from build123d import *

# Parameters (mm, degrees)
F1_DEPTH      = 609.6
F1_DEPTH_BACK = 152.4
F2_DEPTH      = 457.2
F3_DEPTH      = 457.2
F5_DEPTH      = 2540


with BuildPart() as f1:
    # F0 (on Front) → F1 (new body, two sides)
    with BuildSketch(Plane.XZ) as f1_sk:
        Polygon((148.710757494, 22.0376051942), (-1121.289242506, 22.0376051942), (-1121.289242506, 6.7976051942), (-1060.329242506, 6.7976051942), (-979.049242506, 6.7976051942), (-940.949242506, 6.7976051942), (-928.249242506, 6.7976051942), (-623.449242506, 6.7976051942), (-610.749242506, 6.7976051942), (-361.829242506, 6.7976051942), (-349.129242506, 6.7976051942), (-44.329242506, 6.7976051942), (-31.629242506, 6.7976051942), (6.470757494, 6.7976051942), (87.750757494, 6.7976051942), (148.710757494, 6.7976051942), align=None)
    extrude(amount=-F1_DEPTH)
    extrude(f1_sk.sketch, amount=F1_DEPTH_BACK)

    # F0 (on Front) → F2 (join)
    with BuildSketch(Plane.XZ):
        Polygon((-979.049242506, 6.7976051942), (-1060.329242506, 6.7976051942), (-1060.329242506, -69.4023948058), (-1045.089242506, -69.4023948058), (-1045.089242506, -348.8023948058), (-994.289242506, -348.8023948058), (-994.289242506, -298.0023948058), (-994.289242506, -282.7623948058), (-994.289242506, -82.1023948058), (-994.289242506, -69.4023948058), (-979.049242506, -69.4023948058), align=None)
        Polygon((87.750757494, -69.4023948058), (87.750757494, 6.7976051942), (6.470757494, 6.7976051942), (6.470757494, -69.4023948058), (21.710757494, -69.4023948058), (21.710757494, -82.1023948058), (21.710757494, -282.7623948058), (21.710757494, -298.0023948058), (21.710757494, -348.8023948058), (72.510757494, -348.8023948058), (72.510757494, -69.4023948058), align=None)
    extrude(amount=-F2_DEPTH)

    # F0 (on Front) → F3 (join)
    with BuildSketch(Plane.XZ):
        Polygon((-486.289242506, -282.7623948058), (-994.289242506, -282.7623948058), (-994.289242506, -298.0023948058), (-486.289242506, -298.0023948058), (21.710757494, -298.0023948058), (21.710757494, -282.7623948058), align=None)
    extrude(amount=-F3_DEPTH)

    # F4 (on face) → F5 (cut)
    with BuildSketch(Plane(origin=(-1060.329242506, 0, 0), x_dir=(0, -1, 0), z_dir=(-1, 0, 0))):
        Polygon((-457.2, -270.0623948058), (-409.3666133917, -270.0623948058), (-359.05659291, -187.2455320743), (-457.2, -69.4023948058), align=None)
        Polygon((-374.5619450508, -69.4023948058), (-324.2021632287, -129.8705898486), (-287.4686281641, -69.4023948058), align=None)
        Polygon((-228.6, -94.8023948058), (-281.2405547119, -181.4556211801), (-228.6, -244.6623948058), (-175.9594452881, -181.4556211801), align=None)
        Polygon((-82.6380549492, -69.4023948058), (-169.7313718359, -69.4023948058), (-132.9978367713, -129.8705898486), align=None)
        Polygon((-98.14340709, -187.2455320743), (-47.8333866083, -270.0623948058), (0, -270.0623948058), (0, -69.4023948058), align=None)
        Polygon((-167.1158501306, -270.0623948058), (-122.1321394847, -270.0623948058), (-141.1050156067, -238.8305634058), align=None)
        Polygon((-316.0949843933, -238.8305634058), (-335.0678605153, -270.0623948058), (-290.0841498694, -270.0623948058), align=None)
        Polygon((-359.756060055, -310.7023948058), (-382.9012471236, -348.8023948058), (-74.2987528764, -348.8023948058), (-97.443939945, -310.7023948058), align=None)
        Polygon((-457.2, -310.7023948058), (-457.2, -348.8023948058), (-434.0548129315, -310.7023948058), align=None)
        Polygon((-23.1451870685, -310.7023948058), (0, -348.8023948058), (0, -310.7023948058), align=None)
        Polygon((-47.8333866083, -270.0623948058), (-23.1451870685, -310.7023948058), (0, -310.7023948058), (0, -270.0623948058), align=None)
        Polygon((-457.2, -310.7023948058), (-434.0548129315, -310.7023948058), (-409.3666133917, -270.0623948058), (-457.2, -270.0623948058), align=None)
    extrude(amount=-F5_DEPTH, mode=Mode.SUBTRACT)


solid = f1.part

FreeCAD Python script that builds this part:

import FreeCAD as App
import Part
import Sketcher

V = App.Vector
Q = App.Units.Quantity


def add_polygon(sketch, points):
    """Adds a closed chain of lines whose ends are joined by coincident constraints."""
    first, n = sketch.GeometryCount, len(points)
    for a, b in zip(points, points[1:] + points[:1]):
        sketch.addGeometry(Part.LineSegment(App.Vector(*a, 0), App.Vector(*b, 0)), False)
    for i in range(n):
        sketch.addConstraint(Sketcher.Constraint("Coincident", first + i, 2, first + (i + 1) % n, 1))

doc = App.newDocument("Part")
params = doc.addObject("Spreadsheet::Sheet", "Params")
for row, (alias, value) in enumerate([
    ("sketch1_width", "50 in"),
    ("sketch1_height", "0.6 in"),
    ("pad1_length", "24 in"),
    ("pad1_length2", "6 in"),
    ("sketch2_width", "2 in"),
    ("sketch2_height", "3 in"),
    ("sketch2_height2", "11 in"),
    ("sketch2_width2", "3.2 in"),
    ("pad2_length", "18 in"),
    ("sketch3_width", "40 in"),
    ("sketch3_height", "0.6 in"),
    ("pad3_length", "18 in"),
    ("sketch4_height", "11 in"),
    ("pocket1_length", "100 in"),
], start=1):
    params.set(f"A{row}", alias)
    params.set(f"B{row}", "=" + value)
    params.setAlias(f"B{row}", alias)

body = doc.addObject("PartDesign::Body", "Body")

# Sketch on XZ plane
sketch1 = body.newObject("Sketcher::SketchObject", "Sketch")
sketch1.AttachmentSupport = (doc.getObject("XZ_Plane"), [""])
sketch1.MapMode = "FlatFace"
add_polygon(sketch1, [(149, 22), (-1121, 22), (-1121, 7), (149, 7)])  # lines 0-3
sketch1.addConstraint([
    Sketcher.Constraint("Horizontal", 0),
    Sketcher.Constraint("Vertical", 1),
    Sketcher.Constraint("Horizontal", 2),
    Sketcher.Constraint("Vertical", 3),
    Sketcher.Constraint("DistanceX", 0, 2, 0, 1, Q("50 in")),
    Sketcher.Constraint("DistanceY", 1, 2, 1, 1, Q("0.6 in")),
    Sketcher.Constraint("DistanceX", 0, 2, -1, 1, Q("1121.289243 mm")),
    Sketcher.Constraint("DistanceY", -1, 1, 0, 2, Q("22.037605 mm")),
])
sketch1.setExpression("Constraints[8]", "Params.sketch1_width")
sketch1.setExpression("Constraints[9]", "Params.sketch1_height")
pad1 = body.newObject("PartDesign::Pad", "Pad")
pad1.Profile = sketch1
pad1.Type = "TwoLengths"
pad1.setExpression("Length", "Params.pad1_length")
pad1.setExpression("Length2", "Params.pad1_length2")
pad1.Reversed = True

# Sketch on XZ plane
sketch2 = body.newObject("Sketcher::SketchObject", "Sketch001")
sketch2.AttachmentSupport = (doc.getObject("XZ_Plane"), [""])
sketch2.MapMode = "FlatFace"
add_polygon(sketch2, [(-979, 7), (-1060, 7), (-1060, -69), (-1045, -69), (-1045, -349), (-994, -349), (-994, -69), (-979, -69)])  # lines 0-7
add_polygon(sketch2, [(88, -69), (88, 7), (6, 7), (6, -69), (22, -69), (22, -349), (73, -349), (73, -69)])  # lines 8-15
sketch2.addConstraint([
    Sketcher.Constraint("Horizontal", 0),
    Sketcher.Constraint("Vertical", 1),
    Sketcher.Constraint("Horizontal", 2),
    Sketcher.Constraint("Vertical", 3),
    Sketcher.Constraint("Horizontal", 4),
    Sketcher.Constraint("Vertical", 5),
    Sketcher.Constraint("Horizontal", 6),
    Sketcher.Constraint("Vertical", 7),
    Sketcher.Constraint("Vertical", 8),
    Sketcher.Constraint("Horizontal", 9),
    Sketcher.Constraint("Vertical", 10),
    Sketcher.Constraint("Horizontal", 11),
    Sketcher.Constraint("Vertical", 12),
    Sketcher.Constraint("Horizontal", 13),
    Sketcher.Constraint("Vertical", 14),
    Sketcher.Constraint("Horizontal", 15),
    Sketcher.Constraint("Horizontal", 2, 2, 5, 2),
    Sketcher.Constraint("Horizontal", 7, 2, 8, 2),
    Sketcher.Constraint("Horizontal", 6, 2, 10, 2),
    Sketcher.Constraint("Horizontal", 4, 2, 12, 2),
    Sketcher.Constraint("Horizontal", 11, 2, 14, 2),
    Sketcher.Constraint("Equal", 2, 6),
    Sketcher.Constraint("Equal", 0, 9),
    Sketcher.Constraint("Equal", 6, 11),
    Sketcher.Constraint("Equal", 4, 13),
    Sketcher.Constraint("DistanceX", 4, 1, 4, 2, Q("2 in")),
    Sketcher.Constraint("DistanceY", 1, 2, 1, 1, Q("3 in")),
    Sketcher.Constraint("DistanceY", 3, 2, 3, 1, Q("11 in")),
    Sketcher.Constraint("DistanceX", 0, 2, 0, 1, Q("3.2 in")),
    Sketcher.Constraint("DistanceX", 7, 2, 8, 2, Q("42 in")),
    Sketcher.Constraint("DistanceX", 0, 2, -1, 1, Q("1060.329243 mm")),
    Sketcher.Constraint("DistanceY", -1, 1, 0, 2, Q("6.797605 mm")),
])
sketch2.setExpression("Constraints[41]", "Params.sketch2_width")
sketch2.setExpression("Constraints[42]", "Params.sketch2_height")
sketch2.setExpression("Constraints[43]", "Params.sketch2_height2")
sketch2.setExpression("Constraints[44]", "Params.sketch2_width2")
pad2 = body.newObject("PartDesign::Pad", "Pad001")
pad2.Profile = sketch2
pad2.setExpression("Length", "Params.pad2_length")
pad2.Reversed = True

# Sketch on XZ plane
sketch3 = body.newObject("Sketcher::SketchObject", "Sketch002")
sketch3.AttachmentSupport = (doc.getObject("XZ_Plane"), [""])
sketch3.MapMode = "FlatFace"
add_polygon(sketch3, [(-994, -283), (-994, -298), (22, -298), (22, -283)])  # lines 0-3
sketch3.addConstraint([
    Sketcher.Constraint("Vertical", 0),
    Sketcher.Constraint("Horizontal", 1),
    Sketcher.Constraint("Vertical", 2),
    Sketcher.Constraint("Horizontal", 3),
    Sketcher.Constraint("DistanceX", 1, 1, 1, 2, Q("40 in")),
    Sketcher.Constraint("DistanceY", 0, 2, 0, 1, Q("0.6 in")),
    Sketcher.Constraint("DistanceX", 0, 2, -1, 1, Q("994.289243 mm")),
    Sketcher.Constraint("DistanceY", 0, 2, -1, 1, Q("298.002395 mm")),
])
sketch3.setExpression("Constraints[8]", "Params.sketch3_width")
sketch3.setExpression("Constraints[9]", "Params.sketch3_height")
pad3 = body.newObject("PartDesign::Pad", "Pad002")
pad3.Profile = sketch3
pad3.setExpression("Length", "Params.pad3_length")
pad3.Reversed = True

# Sketch on YZ plane
sketch4 = body.newObject("Sketcher::SketchObject", "Sketch003")
sketch4.AttachmentSupport = (doc.getObject("YZ_Plane"), [""])
sketch4.MapMode = "FlatFace"
sketch4.AttachmentOffset = App.Placement(V(0, 0, -1060.329243), App.Rotation())
add_polygon(sketch4, [(359, -187), (457, -69), (457, -349), (434, -311)])  # lines 0-3
add_polygon(sketch4, [(375, -69), (324, -130), (287, -69)])  # lines 4-6
add_polygon(sketch4, [(229, -95), (281, -181), (229, -245), (176, -181)])  # lines 7-10
add_polygon(sketch4, [(83, -69), (170, -69), (133, -130)])  # lines 11-13
add_polygon(sketch4, [(98, -187), (23, -311), (0, -349), (0, -69)])  # lines 14-17
add_polygon(sketch4, [(167, -270), (122, -270), (141, -239)])  # lines 18-20
add_polygon(sketch4, [(316, -239), (335, -270), (290, -270)])  # lines 21-23
add_polygon(sketch4, [(360, -311), (383, -349), (74, -349), (97, -311)])  # lines 24-27
sketch4.addConstraint([
    Sketcher.Constraint("Vertical", 1),
    Sketcher.Constraint("Horizontal", 6),
    Sketcher.Constraint("Horizontal", 11),
    Sketcher.Constraint("Vertical", 16),
    Sketcher.Constraint("Horizontal", 18),
    Sketcher.Constraint("Horizontal", 22),
    Sketcher.Constraint("Horizontal", 25),
    Sketcher.Constraint("Horizontal", 27),
    Sketcher.Constraint("PointOnObject", 15, 2, -2),
    Sketcher.Constraint("Parallel", 2, 3),
    Sketcher.Constraint("Parallel", 0, 4),
    Sketcher.Constraint("Parallel", 3, 5),
    Sketcher.Constraint("Parallel", 5, 7),
    Sketcher.Constraint("Parallel", 4, 8),
    Sketcher.Constraint("Parallel", 10, 12),
    Sketcher.Constraint("Parallel", 9, 13),
    Sketcher.Constraint("Parallel", 12, 14),
    Sketcher.Constraint("Parallel", 14, 15),
    Sketcher.Constraint("Parallel", 13, 17),
    Sketcher.Constraint("Parallel", 15, 19),
    Sketcher.Constraint("Parallel", 17, 20),
    Sketcher.Constraint("Parallel", 7, 21),
    Sketcher.Constraint("Parallel", 8, 23),
    Sketcher.Constraint("Parallel", 21, 24),
    Sketcher.Constraint("Parallel", 19, 26),
    Sketcher.Constraint("Horizontal", 0, 2, 5, 2),
    Sketcher.Constraint("Horizontal", 7, 2, 9, 2),
    Sketcher.Constraint("Horizontal", 6, 2, 11, 2),
    Sketcher.Constraint("Horizontal", 4, 2, 12, 2),
    Sketcher.Constraint("Horizontal", 2, 2, 14, 2),
    Sketcher.Constraint("Horizontal", 1, 2, 15, 2),
    Sketcher.Constraint("Horizontal", 13, 2, 16, 2),
    Sketcher.Constraint("Horizontal", 3, 2, 17, 2),
    Sketcher.Constraint("Horizontal", 20, 2, 21, 2),
    Sketcher.Constraint("Horizontal", 19, 2, 23, 2),
    Sketcher.Constraint("Horizontal", 15, 2, 24, 2),
    Sketcher.Constraint("Horizontal", 14, 2, 26, 2),
    Sketcher.Constraint("Equal", 6, 11),
    Sketcher.Constraint("DistanceY", 1, 2, 1, 1, Q("11 in")),
    Sketcher.Constraint("DistanceX", -1, 1, 0, 2, Q("18 in")),
    Sketcher.Constraint("DistanceX", -1, 1, 8, 2, Q("9 in")),
    Sketcher.Constraint("DistanceY", 10, 2, 5, 2, Q("1 in")),
    Sketcher.Constraint("DistanceY", 18, 2, 8, 2, Q("1 in")),
    Sketcher.Constraint("DistanceY", 1, 2, 2, 2, Q("1.5 in")),
    Sketcher.Constraint("DistanceY", 8, 2, 5, 2, Q("6.9 in")),
    Sketcher.Constraint("DistanceX", 18, 2, 18, 1, Q("44.983711 mm")),
    Sketcher.Constraint("DistanceX", 27, 1, 27, 2, Q("262.31212 mm")),
    Sketcher.Constraint("DistanceX", 20, 2, 22, 2, Q("122.9683 mm")),
    Sketcher.Constraint("DistanceX", 26, 2, 18, 2, Q("24.6882 mm")),
    Sketcher.Constraint("Distance", 0, Q("153.359491 mm")),
    Sketcher.Constraint("Distance", 2, Q("44.579252 mm")),
    Sketcher.Constraint("Distance", 5, Q("70.751362 mm")),
    Sketcher.Constraint("DistanceY", 4, 2, -1, 1, Q("129.87059 mm")),
    Sketcher.Constraint("DistanceX", -1, 1, 5, 2, Q("287.468628 mm")),
    Sketcher.Constraint("DistanceX", -1, 1, 11, 2, Q("169.731372 mm")),
    Sketcher.Constraint("DistanceX", -1, 1, 18, 2, Q("122.132139 mm")),
])
sketch4.setExpression("Constraints[66]", "Params.sketch4_height")
pocket1 = body.newObject("PartDesign::Pocket", "Pocket")
pocket1.Profile = sketch4
pocket1.setExpression("Length", "Params.pocket1_length")
pocket1.Reversed = True

doc.recompute()
